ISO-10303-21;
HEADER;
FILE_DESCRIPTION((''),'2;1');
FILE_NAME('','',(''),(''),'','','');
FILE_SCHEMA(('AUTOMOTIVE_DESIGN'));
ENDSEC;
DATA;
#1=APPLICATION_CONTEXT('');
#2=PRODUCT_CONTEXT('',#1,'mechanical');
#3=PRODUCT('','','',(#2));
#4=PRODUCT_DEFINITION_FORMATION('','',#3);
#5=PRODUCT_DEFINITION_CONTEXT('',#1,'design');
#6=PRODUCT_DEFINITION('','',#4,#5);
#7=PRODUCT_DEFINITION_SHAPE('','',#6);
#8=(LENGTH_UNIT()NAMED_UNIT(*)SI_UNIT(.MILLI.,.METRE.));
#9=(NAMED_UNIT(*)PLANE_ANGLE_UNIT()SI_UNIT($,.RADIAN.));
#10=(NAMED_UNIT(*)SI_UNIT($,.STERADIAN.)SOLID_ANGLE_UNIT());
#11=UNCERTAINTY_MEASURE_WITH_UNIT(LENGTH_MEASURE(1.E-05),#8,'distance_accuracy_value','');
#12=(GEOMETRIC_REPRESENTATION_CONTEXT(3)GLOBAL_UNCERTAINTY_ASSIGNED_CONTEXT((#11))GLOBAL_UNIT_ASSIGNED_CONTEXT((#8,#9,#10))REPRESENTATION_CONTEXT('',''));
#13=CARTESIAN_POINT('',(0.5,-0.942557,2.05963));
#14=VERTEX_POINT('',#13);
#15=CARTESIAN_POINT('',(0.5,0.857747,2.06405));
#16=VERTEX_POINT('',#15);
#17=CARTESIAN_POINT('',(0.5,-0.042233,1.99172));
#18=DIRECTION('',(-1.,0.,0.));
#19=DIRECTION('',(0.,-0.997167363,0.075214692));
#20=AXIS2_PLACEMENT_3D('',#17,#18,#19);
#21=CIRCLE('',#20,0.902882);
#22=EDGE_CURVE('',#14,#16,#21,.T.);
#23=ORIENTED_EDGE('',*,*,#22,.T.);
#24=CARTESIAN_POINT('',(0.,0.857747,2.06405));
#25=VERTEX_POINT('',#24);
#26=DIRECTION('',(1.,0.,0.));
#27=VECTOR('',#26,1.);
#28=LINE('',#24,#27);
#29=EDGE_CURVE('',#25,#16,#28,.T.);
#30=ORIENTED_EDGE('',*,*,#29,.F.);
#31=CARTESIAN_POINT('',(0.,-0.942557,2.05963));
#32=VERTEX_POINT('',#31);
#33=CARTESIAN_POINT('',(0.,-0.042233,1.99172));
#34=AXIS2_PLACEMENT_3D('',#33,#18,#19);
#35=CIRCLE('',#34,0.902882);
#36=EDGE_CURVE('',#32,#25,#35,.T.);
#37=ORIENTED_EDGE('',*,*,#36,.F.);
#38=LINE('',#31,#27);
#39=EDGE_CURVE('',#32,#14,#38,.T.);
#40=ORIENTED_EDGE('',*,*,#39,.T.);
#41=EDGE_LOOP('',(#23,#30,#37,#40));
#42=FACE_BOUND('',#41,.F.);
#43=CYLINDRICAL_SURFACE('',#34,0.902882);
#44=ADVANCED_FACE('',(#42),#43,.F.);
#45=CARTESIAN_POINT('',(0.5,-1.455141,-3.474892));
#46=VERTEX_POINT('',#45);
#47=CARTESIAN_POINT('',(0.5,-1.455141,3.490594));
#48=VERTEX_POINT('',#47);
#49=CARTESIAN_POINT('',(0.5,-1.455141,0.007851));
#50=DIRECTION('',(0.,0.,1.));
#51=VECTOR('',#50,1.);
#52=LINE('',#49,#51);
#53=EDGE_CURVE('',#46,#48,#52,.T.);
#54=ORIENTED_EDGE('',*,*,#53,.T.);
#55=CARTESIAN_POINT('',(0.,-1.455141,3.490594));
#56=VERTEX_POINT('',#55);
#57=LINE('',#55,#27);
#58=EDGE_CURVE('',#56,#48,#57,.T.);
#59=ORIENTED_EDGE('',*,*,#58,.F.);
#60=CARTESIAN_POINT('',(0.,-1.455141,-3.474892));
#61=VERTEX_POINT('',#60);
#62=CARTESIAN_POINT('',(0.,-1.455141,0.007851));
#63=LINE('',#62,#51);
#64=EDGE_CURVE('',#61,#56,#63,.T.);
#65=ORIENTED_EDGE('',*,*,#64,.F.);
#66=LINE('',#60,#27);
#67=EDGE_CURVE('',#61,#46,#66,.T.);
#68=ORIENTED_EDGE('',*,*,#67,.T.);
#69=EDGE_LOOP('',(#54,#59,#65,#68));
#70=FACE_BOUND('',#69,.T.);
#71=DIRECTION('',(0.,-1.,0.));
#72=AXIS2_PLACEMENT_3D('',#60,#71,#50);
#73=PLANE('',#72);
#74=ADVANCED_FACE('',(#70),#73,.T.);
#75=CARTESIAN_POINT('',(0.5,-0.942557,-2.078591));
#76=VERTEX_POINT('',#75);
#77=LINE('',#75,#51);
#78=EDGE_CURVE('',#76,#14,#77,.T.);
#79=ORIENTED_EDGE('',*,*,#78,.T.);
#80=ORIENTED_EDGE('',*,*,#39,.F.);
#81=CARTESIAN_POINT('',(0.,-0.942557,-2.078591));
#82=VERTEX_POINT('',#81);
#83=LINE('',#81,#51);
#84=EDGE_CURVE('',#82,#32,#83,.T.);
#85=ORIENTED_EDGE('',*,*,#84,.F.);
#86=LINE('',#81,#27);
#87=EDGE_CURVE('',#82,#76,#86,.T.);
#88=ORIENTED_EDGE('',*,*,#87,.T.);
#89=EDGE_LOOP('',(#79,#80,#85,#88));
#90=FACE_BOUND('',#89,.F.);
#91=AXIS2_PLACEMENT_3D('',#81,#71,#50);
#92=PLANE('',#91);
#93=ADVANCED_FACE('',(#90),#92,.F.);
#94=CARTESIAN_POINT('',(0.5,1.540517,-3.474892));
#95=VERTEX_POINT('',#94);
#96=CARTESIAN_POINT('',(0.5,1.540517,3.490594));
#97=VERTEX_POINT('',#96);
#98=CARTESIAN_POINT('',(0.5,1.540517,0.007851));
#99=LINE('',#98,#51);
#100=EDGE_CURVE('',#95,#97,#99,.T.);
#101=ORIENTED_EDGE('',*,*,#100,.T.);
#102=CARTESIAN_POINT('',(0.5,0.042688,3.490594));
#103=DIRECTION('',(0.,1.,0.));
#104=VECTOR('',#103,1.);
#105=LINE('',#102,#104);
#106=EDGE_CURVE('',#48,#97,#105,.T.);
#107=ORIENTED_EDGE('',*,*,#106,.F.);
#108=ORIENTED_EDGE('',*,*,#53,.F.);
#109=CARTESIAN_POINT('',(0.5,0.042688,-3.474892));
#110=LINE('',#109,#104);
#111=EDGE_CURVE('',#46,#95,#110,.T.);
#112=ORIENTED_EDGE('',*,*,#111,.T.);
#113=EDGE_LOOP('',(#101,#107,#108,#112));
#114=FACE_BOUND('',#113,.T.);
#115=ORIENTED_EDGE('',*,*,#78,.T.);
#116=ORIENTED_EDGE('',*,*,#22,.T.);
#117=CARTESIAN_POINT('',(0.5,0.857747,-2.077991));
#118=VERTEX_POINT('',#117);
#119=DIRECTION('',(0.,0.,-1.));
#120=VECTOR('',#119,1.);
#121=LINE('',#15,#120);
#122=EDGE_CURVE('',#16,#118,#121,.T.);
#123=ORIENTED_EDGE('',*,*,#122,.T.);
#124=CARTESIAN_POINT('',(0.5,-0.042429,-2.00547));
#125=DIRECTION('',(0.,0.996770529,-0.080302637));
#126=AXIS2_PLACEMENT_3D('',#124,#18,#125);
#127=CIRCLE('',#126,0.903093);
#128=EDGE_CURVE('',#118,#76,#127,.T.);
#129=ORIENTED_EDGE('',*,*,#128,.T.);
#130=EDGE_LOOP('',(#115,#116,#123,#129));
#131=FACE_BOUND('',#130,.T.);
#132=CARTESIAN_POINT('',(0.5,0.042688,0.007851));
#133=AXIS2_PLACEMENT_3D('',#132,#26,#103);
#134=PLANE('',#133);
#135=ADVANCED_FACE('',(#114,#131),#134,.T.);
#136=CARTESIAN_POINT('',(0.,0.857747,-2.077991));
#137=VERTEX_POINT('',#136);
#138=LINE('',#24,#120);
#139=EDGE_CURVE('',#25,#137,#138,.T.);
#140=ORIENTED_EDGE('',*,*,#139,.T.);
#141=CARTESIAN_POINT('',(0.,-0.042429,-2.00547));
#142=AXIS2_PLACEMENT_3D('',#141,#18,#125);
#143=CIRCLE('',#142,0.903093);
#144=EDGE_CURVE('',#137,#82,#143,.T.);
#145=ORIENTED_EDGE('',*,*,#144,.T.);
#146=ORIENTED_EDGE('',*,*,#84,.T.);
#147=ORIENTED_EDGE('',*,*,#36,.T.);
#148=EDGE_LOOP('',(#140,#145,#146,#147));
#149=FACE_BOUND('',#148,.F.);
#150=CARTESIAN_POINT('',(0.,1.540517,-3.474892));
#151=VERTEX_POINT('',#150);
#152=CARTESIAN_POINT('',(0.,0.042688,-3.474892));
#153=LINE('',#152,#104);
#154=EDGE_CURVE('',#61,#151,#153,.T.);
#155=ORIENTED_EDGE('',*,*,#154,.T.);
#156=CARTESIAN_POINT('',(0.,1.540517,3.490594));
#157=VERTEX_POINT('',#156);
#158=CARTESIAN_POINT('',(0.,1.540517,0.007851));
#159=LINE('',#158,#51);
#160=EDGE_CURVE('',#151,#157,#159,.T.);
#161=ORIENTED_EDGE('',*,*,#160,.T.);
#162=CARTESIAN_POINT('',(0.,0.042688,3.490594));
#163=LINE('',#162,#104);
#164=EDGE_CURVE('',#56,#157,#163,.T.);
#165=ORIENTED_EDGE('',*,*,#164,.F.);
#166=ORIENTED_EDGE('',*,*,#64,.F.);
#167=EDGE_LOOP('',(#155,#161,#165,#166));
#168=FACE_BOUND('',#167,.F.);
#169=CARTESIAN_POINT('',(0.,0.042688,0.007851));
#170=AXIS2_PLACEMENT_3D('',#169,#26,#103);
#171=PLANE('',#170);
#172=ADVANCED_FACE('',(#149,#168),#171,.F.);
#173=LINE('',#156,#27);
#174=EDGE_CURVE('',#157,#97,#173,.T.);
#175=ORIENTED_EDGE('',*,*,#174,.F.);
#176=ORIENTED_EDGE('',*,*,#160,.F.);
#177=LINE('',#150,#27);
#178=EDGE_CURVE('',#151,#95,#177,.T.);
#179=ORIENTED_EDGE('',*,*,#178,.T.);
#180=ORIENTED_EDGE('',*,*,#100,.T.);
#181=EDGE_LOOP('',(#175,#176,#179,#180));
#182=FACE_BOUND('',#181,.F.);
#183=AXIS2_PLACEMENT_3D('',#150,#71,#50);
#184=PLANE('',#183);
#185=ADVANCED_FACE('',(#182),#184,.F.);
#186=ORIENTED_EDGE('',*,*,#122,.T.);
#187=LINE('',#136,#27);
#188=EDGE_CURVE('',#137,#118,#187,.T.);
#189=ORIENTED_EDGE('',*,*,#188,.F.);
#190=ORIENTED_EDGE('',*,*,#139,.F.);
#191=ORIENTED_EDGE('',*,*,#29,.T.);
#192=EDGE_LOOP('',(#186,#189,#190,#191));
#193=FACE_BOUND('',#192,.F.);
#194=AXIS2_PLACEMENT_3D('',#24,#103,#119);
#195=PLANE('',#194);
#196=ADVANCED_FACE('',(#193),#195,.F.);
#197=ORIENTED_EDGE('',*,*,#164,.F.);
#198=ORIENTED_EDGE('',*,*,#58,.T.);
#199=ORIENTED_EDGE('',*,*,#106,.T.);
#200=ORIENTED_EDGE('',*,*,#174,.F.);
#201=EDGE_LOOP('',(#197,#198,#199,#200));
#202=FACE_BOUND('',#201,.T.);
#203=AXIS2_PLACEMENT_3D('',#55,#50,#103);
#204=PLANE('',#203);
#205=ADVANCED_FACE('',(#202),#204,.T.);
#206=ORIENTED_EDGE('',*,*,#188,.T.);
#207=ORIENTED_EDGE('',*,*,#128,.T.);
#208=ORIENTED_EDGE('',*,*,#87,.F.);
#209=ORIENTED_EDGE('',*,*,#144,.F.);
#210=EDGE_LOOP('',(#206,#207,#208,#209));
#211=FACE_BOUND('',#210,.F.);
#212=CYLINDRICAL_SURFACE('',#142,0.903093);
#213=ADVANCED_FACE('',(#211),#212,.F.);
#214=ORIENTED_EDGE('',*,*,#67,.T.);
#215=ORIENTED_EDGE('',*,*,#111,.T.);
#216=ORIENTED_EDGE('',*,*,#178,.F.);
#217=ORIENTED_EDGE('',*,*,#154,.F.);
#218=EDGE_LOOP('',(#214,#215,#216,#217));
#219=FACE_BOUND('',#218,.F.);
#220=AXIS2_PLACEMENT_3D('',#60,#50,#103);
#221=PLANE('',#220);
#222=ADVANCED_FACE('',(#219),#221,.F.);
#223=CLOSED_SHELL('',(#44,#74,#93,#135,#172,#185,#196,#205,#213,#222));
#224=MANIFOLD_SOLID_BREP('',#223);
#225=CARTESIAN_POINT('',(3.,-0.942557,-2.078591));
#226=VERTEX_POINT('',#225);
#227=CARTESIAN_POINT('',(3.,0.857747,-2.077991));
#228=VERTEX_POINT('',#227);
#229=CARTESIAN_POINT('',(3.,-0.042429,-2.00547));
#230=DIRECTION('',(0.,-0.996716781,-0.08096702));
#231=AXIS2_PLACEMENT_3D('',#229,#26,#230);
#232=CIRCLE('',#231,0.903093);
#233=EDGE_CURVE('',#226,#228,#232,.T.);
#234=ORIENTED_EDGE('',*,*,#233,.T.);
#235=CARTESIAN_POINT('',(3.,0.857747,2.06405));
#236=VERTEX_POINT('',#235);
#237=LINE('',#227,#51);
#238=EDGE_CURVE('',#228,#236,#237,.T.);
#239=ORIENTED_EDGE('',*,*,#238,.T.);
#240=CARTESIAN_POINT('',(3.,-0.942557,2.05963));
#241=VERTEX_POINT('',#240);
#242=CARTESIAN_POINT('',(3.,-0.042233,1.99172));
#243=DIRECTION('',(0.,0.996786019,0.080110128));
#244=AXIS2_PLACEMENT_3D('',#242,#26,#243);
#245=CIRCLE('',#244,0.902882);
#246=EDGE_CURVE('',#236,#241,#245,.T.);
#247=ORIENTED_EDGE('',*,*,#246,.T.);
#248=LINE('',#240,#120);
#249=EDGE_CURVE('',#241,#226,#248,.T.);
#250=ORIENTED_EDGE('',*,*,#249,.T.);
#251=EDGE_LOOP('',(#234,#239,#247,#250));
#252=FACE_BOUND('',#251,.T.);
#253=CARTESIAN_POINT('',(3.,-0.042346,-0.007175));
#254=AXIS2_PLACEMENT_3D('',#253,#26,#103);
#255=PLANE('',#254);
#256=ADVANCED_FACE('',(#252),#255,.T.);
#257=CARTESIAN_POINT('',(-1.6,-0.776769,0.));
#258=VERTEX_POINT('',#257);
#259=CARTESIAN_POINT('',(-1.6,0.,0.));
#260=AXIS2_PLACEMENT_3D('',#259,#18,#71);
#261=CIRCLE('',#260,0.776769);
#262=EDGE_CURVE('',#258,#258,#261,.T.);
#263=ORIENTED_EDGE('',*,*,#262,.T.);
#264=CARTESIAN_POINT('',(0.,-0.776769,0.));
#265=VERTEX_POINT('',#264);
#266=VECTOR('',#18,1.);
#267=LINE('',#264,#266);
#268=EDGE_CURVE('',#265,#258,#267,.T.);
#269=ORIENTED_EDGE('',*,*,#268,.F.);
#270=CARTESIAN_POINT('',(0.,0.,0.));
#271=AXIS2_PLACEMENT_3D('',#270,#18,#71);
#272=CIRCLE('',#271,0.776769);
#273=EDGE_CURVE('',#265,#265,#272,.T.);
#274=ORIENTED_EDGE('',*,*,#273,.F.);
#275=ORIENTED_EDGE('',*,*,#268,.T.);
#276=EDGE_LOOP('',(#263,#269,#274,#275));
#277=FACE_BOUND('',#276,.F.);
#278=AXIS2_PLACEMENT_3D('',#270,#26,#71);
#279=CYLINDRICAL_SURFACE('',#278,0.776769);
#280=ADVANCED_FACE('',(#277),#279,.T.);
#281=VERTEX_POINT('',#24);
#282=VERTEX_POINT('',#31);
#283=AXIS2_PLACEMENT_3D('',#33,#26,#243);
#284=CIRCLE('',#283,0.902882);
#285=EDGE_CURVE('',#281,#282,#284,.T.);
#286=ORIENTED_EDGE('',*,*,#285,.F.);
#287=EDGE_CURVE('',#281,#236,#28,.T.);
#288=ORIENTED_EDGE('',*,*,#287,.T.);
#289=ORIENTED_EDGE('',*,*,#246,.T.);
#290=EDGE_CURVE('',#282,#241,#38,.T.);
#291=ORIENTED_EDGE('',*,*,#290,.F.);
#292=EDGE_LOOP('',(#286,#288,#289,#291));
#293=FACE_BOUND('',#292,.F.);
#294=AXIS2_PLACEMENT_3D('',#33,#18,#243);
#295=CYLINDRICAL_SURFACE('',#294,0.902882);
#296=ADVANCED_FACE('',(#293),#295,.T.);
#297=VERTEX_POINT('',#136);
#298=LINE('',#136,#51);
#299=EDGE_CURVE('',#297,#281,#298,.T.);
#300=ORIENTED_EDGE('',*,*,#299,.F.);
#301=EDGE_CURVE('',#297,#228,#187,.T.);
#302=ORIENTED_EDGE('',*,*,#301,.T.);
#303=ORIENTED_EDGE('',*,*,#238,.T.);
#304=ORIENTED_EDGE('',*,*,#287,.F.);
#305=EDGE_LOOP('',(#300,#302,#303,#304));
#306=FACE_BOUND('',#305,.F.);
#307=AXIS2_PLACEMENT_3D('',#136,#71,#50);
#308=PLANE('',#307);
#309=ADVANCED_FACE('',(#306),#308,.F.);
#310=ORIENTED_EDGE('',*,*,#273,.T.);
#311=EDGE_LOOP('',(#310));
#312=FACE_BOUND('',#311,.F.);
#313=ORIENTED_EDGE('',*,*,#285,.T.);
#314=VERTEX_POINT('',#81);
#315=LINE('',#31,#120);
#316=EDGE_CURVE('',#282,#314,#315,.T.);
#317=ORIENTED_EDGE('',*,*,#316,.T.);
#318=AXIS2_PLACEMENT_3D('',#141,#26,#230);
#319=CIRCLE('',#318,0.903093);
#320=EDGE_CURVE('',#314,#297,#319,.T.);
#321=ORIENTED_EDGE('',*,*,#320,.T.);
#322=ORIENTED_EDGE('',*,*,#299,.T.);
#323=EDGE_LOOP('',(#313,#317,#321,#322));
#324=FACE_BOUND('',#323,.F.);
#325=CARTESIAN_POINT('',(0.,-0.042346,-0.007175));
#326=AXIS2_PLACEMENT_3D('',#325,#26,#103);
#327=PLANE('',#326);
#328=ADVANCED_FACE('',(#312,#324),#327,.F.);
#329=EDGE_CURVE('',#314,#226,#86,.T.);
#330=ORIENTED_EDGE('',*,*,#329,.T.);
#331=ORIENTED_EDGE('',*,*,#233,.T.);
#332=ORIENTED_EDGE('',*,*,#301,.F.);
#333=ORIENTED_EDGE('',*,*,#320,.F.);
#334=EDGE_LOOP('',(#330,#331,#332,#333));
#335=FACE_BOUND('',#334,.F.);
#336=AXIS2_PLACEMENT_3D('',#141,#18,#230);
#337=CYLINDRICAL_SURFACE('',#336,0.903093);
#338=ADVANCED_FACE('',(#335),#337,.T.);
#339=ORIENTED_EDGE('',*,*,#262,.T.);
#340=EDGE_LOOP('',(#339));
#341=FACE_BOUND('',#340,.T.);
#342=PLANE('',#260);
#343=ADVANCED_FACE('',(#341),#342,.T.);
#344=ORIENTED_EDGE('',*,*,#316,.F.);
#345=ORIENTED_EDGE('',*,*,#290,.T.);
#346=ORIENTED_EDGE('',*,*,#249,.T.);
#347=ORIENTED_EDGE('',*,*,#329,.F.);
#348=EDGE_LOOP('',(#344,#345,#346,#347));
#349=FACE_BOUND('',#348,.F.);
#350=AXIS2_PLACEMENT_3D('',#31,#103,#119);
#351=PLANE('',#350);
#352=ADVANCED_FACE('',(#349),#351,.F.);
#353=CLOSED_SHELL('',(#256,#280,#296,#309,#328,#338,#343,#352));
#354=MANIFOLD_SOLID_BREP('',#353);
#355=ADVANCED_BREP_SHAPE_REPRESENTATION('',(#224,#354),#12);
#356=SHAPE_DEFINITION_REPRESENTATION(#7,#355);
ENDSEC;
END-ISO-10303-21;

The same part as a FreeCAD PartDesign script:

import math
import FreeCAD as App
import Part
import Sketcher

doc = App.newDocument("Part")
params = doc.addObject("Spreadsheet::Sheet", "Params")
for row, (alias, value) in enumerate([
    ("pad1_length", "0.5 mm"),
    ("pad2_length", "3 mm"),
    ("pad3_length", "1.6 mm"),
], start=1):
    params.set(f"A{row}", alias)
    params.set(f"B{row}", "=" + value)
    params.setAlias(f"B{row}", alias)

body = doc.addObject("PartDesign::Body", "Body")

# Sketch on YZ plane
sketch1 = body.newObject("Sketcher::SketchObject", "Sketch")
sketch1.AttachmentSupport = (doc.getObject("YZ_Plane"), [""])
sketch1.MapMode = "FlatFace"
sketch1.addGeometry([
    Part.LineSegment(App.Vector(-1.5, 3.5, 0), App.Vector(-1.5, -3.5, 0)),  # 0
    Part.LineSegment(App.Vector(-1.5, -3.5, 0), App.Vector(1.5, -3.5, 0)),  # 1
    Part.LineSegment(App.Vector(1.5, -3.5, 0), App.Vector(1.5, 3.5, 0)),  # 2
    Part.LineSegment(App.Vector(1.5, 3.5, 0), App.Vector(-1.5, 3.5, 0)),  # 3
    Part.ArcOfCircle(Part.Circle(App.Vector(0, -2, 0), App.Vector(0, 0, 1), 0.9), math.radians(-175), math.radians(-5)),  # 4
    Part.LineSegment(App.Vector(-0.9, -2.1, 0), App.Vector(-0.9, 2.1, 0)),  # 5
    Part.ArcOfCircle(Part.Circle(App.Vector(0, 2, 0), App.Vector(0, 0, 1), 0.9), math.radians(5), math.radians(176)),  # 6
    Part.LineSegment(App.Vector(0.9, 2.1, 0), App.Vector(0.9, -2.1, 0)),  # 7
], False)
sketch1.addConstraint([
    Sketcher.Constraint("Coincident", 0, 2, 1, 1),
    Sketcher.Constraint("Coincident", 1, 2, 2, 1),
    Sketcher.Constraint("Coincident", 2, 2, 3, 1),
    Sketcher.Constraint("Coincident", 3, 2, 0, 1),
    Sketcher.Constraint("Coincident", 4, 1, 5, 1),
    Sketcher.Constraint("Coincident", 5, 2, 6, 2),
    Sketcher.Constraint("Coincident", 6, 1, 7, 1),
    Sketcher.Constraint("Coincident", 7, 2, 4, 2),
    Sketcher.Constraint("Vertical", 0),
    Sketcher.Constraint("Horizontal", 1),
    Sketcher.Constraint("Vertical", 2),
    Sketcher.Constraint("Horizontal", 3),
    Sketcher.Constraint("Vertical", 5),
    Sketcher.Constraint("Vertical", 7),
    Sketcher.Constraint("Radius", 6, 0.902882),
    Sketcher.Constraint("Radius", 4, 0.903093),
    Sketcher.Constraint("DistanceY", 5, 1, 5, 2, 4.138221),
    Sketcher.Constraint("DistanceY", 7, 2, 7, 1, 4.142041),
    Sketcher.Constraint("DistanceY", 0, 2, 4, 1, 1.396301),
    Sketcher.Constraint("DistanceY", 4, 3, 5, 2, 4.0651),
    Sketcher.Constraint("DistanceY", 1, 2, 7, 2, 1.396901),
    Sketcher.Constraint("DistanceX", 1, 1, 1, 2, 2.995658),
    Sketcher.Constraint("DistanceY", 0, 2, 0, 1, 6.965485),
    Sketcher.Constraint("DistanceX", 4, 3, -1, 1, 0.042429),
    Sketcher.Constraint("DistanceY", 4, 3, -1, 1, 2.00547),
    Sketcher.Constraint("DistanceX", 0, 2, -1, 1, 1.455141),
])
pad1 = body.newObject("PartDesign::Pad", "Pad")
pad1.Profile = sketch1
pad1.setExpression("Length", "Params.pad1_length")
body2 = doc.addObject("PartDesign::Body", "Body001")

# Sketch on YZ plane
sketch2 = body2.newObject("Sketcher::SketchObject", "Sketch001")
sketch2.AttachmentSupport = (doc.getObject("YZ_Plane001"), [""])
sketch2.MapMode = "FlatFace"
sketch2.addGeometry([
    Part.ArcOfCircle(Part.Circle(App.Vector(0, 2, 0), App.Vector(0, 0, 1), 0.9), math.radians(5), math.radians(176)),
    Part.LineSegment(App.Vector(-0.9, 2.1, 0), App.Vector(-0.9, -2.1, 0)),
    Part.ArcOfCircle(Part.Circle(App.Vector(0, -2, 0), App.Vector(0, 0, 1), 0.9), math.radians(-175), math.radians(-5)),
    Part.LineSegment(App.Vector(0.9, -2.1, 0), App.Vector(0.9, 2.1, 0)),
], False)
sketch2.addConstraint([
    Sketcher.Constraint("Coincident", 0, 2, 1, 1),
    Sketcher.Constraint("Coincident", 1, 2, 2, 1),
    Sketcher.Constraint("Coincident", 2, 2, 3, 1),
    Sketcher.Constraint("Coincident", 3, 2, 0, 1),
    Sketcher.Constraint("Vertical", 1),
    Sketcher.Constraint("Vertical", 3),
    Sketcher.Constraint("Radius", 0, 0.902882),
    Sketcher.Constraint("Radius", 2, 0.903093),
    Sketcher.Constraint("DistanceY", 1, 2, 1, 1, 4.138221),
    Sketcher.Constraint("DistanceY", 3, 1, 3, 2, 4.142041),
    Sketcher.Constraint("DistanceY", 2, 3, 0, 2, 4.0651),
    Sketcher.Constraint("DistanceY", 1, 2, 2, 2, 0.0006),
    Sketcher.Constraint("DistanceY", -1, 1, 0, 3, 1.99172),
    Sketcher.Constraint("DistanceX", 2, 3, -1, 1, 0.042429),
])
pad2 = body2.newObject("PartDesign::Pad", "Pad001")
pad2.Profile = sketch2
pad2.setExpression("Length", "Params.pad2_length")

# Sketch on YZ plane
sketch3 = body2.newObject("Sketcher::SketchObject", "Sketch002")
sketch3.AttachmentSupport = (doc.getObject("YZ_Plane001"), [""])
sketch3.MapMode = "FlatFace"
sketch3.addGeometry(Part.Circle(App.Vector(0, 0, 0), App.Vector(0, 0, 1), 0.8), False)
sketch3.addConstraint([
    Sketcher.Constraint("Coincident", 0, 3, -1, 1),
    Sketcher.Constraint("Diameter", 0, 1.553538),
])
pad3 = body2.newObject("PartDesign::Pad", "Pad002")
pad3.Profile = sketch3
pad3.setExpression("Length", "Params.pad3_length")
pad3.Reversed = True

doc.recompute()
